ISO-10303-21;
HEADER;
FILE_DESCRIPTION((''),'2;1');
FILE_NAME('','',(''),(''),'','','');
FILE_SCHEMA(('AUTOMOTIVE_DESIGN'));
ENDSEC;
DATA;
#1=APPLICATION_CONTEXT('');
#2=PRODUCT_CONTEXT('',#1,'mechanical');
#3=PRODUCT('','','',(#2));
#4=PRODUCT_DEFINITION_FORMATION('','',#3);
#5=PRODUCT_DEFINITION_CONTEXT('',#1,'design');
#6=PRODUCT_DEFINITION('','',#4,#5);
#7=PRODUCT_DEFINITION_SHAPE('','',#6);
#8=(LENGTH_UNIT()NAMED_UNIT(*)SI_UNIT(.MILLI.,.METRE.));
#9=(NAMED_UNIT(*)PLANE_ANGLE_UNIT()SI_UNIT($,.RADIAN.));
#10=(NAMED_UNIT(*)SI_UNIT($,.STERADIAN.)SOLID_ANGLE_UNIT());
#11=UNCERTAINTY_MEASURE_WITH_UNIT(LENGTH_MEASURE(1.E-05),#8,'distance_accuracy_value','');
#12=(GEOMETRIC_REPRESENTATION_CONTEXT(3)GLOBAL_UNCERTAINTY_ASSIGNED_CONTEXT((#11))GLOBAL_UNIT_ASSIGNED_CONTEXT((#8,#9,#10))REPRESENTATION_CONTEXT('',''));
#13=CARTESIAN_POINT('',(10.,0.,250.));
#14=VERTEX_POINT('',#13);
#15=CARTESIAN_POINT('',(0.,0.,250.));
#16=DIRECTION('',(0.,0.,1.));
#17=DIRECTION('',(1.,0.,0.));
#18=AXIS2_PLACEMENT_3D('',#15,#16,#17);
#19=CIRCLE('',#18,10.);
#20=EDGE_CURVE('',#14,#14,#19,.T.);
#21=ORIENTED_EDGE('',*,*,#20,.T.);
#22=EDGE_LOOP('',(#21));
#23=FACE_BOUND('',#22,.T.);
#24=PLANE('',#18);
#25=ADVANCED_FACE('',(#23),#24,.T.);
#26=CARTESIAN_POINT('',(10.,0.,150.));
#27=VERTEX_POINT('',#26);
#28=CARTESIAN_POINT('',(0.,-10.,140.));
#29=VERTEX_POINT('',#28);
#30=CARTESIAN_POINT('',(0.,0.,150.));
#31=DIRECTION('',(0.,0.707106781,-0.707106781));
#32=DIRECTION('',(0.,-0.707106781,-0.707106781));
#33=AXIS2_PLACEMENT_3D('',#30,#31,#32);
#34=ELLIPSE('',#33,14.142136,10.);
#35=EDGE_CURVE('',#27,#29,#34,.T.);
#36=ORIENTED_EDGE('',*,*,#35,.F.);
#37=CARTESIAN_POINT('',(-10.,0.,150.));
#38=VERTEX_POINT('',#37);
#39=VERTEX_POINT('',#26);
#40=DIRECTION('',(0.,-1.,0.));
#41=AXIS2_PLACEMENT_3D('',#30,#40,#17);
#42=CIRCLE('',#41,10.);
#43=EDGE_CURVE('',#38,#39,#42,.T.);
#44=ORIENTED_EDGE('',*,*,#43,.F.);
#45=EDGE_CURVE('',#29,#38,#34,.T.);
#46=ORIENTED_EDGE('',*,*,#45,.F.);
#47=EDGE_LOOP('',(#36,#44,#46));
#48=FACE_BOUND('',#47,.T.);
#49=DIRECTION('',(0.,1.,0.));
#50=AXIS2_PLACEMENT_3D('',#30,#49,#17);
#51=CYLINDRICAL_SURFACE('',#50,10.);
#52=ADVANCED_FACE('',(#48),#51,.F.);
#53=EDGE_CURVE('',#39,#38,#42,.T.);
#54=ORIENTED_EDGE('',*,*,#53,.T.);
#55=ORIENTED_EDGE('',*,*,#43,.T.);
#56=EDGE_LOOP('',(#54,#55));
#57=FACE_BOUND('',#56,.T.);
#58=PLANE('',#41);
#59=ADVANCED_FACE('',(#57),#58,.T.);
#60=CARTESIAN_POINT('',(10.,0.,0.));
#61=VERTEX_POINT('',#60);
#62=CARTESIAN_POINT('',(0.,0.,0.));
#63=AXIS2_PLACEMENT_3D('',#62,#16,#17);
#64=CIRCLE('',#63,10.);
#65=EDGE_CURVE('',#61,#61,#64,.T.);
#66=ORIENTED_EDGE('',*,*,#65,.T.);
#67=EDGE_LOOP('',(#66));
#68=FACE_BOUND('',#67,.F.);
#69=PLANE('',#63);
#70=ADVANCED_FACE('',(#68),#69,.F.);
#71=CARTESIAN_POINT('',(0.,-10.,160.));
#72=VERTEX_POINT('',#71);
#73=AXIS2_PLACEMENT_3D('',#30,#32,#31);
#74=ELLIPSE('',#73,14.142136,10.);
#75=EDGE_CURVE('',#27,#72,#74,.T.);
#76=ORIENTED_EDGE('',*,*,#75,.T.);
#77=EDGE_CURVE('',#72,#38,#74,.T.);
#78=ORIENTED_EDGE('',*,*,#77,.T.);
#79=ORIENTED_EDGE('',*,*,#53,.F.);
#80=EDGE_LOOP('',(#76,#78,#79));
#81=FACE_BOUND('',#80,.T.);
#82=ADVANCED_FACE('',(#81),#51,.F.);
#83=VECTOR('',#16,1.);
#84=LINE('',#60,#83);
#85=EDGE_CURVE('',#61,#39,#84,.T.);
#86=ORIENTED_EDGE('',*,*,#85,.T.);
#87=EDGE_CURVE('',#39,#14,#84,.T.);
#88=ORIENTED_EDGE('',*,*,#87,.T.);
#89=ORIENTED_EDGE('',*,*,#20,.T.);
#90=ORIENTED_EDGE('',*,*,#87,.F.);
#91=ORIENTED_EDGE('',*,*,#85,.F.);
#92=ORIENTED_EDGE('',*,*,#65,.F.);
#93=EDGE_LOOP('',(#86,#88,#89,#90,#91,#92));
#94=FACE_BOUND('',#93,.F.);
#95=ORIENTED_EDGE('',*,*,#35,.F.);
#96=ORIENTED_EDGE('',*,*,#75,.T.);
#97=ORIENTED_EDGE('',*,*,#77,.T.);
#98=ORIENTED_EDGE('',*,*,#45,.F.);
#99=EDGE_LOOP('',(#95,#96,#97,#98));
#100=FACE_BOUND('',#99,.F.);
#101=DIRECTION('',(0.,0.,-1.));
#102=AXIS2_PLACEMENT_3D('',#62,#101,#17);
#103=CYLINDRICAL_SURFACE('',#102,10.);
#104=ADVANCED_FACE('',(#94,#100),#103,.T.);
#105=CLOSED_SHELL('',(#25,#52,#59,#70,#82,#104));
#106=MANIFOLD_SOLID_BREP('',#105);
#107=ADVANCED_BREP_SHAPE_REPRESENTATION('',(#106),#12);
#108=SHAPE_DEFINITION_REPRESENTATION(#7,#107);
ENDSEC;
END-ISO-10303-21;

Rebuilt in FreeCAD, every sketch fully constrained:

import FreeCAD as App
import Part
import Sketcher
from FreeCAD import Vector

doc = App.newDocument("Part")
body = doc.addObject("PartDesign::Body", "Body")

sketch1 = doc.addObject("Sketcher::SketchObject", "Sketch")
body.addObject(sketch1)
sketch1.AttachmentSupport = (doc.XY_Plane, [""])
sketch1.MapMode = "FlatFace"
sketch1.addGeometry(Part.Circle(Vector(0, 0, 0), Vector(0, 0, 1), 10), False)
sketch1.addConstraint([
    Sketcher.Constraint("Coincident", 0, 3, -1, 1),
    Sketcher.Constraint("Diameter", 0, 20.0),
])
pad1 = doc.addObject("PartDesign::Pad", "Pad")
body.addObject(pad1)
pad1.Profile = sketch1
pad1.Length = 250

sketch2 = doc.addObject("Sketcher::SketchObject", "Sketch001")
body.addObject(sketch2)
sketch2.AttachmentSupport = (doc.XZ_Plane, [""])
sketch2.MapMode = "FlatFace"
sketch2.addGeometry(Part.Circle(Vector(0, 150, 0), Vector(0, 0, 1), 10), False)
sketch2.addConstraint([
    Sketcher.Constraint("PointOnObject", 0, 3, -2),
    Sketcher.Constraint("Diameter", 0, 20.0),
    Sketcher.Constraint("DistanceY", -1, 1, 0, 3, 150.0),
])
pocket1 = doc.addObject("PartDesign::Pocket", "Pocket")
body.addObject(pocket1)
pocket1.Profile = sketch2
pocket1.Length = 10
pocket1.Reversed = True

doc.recompute()
